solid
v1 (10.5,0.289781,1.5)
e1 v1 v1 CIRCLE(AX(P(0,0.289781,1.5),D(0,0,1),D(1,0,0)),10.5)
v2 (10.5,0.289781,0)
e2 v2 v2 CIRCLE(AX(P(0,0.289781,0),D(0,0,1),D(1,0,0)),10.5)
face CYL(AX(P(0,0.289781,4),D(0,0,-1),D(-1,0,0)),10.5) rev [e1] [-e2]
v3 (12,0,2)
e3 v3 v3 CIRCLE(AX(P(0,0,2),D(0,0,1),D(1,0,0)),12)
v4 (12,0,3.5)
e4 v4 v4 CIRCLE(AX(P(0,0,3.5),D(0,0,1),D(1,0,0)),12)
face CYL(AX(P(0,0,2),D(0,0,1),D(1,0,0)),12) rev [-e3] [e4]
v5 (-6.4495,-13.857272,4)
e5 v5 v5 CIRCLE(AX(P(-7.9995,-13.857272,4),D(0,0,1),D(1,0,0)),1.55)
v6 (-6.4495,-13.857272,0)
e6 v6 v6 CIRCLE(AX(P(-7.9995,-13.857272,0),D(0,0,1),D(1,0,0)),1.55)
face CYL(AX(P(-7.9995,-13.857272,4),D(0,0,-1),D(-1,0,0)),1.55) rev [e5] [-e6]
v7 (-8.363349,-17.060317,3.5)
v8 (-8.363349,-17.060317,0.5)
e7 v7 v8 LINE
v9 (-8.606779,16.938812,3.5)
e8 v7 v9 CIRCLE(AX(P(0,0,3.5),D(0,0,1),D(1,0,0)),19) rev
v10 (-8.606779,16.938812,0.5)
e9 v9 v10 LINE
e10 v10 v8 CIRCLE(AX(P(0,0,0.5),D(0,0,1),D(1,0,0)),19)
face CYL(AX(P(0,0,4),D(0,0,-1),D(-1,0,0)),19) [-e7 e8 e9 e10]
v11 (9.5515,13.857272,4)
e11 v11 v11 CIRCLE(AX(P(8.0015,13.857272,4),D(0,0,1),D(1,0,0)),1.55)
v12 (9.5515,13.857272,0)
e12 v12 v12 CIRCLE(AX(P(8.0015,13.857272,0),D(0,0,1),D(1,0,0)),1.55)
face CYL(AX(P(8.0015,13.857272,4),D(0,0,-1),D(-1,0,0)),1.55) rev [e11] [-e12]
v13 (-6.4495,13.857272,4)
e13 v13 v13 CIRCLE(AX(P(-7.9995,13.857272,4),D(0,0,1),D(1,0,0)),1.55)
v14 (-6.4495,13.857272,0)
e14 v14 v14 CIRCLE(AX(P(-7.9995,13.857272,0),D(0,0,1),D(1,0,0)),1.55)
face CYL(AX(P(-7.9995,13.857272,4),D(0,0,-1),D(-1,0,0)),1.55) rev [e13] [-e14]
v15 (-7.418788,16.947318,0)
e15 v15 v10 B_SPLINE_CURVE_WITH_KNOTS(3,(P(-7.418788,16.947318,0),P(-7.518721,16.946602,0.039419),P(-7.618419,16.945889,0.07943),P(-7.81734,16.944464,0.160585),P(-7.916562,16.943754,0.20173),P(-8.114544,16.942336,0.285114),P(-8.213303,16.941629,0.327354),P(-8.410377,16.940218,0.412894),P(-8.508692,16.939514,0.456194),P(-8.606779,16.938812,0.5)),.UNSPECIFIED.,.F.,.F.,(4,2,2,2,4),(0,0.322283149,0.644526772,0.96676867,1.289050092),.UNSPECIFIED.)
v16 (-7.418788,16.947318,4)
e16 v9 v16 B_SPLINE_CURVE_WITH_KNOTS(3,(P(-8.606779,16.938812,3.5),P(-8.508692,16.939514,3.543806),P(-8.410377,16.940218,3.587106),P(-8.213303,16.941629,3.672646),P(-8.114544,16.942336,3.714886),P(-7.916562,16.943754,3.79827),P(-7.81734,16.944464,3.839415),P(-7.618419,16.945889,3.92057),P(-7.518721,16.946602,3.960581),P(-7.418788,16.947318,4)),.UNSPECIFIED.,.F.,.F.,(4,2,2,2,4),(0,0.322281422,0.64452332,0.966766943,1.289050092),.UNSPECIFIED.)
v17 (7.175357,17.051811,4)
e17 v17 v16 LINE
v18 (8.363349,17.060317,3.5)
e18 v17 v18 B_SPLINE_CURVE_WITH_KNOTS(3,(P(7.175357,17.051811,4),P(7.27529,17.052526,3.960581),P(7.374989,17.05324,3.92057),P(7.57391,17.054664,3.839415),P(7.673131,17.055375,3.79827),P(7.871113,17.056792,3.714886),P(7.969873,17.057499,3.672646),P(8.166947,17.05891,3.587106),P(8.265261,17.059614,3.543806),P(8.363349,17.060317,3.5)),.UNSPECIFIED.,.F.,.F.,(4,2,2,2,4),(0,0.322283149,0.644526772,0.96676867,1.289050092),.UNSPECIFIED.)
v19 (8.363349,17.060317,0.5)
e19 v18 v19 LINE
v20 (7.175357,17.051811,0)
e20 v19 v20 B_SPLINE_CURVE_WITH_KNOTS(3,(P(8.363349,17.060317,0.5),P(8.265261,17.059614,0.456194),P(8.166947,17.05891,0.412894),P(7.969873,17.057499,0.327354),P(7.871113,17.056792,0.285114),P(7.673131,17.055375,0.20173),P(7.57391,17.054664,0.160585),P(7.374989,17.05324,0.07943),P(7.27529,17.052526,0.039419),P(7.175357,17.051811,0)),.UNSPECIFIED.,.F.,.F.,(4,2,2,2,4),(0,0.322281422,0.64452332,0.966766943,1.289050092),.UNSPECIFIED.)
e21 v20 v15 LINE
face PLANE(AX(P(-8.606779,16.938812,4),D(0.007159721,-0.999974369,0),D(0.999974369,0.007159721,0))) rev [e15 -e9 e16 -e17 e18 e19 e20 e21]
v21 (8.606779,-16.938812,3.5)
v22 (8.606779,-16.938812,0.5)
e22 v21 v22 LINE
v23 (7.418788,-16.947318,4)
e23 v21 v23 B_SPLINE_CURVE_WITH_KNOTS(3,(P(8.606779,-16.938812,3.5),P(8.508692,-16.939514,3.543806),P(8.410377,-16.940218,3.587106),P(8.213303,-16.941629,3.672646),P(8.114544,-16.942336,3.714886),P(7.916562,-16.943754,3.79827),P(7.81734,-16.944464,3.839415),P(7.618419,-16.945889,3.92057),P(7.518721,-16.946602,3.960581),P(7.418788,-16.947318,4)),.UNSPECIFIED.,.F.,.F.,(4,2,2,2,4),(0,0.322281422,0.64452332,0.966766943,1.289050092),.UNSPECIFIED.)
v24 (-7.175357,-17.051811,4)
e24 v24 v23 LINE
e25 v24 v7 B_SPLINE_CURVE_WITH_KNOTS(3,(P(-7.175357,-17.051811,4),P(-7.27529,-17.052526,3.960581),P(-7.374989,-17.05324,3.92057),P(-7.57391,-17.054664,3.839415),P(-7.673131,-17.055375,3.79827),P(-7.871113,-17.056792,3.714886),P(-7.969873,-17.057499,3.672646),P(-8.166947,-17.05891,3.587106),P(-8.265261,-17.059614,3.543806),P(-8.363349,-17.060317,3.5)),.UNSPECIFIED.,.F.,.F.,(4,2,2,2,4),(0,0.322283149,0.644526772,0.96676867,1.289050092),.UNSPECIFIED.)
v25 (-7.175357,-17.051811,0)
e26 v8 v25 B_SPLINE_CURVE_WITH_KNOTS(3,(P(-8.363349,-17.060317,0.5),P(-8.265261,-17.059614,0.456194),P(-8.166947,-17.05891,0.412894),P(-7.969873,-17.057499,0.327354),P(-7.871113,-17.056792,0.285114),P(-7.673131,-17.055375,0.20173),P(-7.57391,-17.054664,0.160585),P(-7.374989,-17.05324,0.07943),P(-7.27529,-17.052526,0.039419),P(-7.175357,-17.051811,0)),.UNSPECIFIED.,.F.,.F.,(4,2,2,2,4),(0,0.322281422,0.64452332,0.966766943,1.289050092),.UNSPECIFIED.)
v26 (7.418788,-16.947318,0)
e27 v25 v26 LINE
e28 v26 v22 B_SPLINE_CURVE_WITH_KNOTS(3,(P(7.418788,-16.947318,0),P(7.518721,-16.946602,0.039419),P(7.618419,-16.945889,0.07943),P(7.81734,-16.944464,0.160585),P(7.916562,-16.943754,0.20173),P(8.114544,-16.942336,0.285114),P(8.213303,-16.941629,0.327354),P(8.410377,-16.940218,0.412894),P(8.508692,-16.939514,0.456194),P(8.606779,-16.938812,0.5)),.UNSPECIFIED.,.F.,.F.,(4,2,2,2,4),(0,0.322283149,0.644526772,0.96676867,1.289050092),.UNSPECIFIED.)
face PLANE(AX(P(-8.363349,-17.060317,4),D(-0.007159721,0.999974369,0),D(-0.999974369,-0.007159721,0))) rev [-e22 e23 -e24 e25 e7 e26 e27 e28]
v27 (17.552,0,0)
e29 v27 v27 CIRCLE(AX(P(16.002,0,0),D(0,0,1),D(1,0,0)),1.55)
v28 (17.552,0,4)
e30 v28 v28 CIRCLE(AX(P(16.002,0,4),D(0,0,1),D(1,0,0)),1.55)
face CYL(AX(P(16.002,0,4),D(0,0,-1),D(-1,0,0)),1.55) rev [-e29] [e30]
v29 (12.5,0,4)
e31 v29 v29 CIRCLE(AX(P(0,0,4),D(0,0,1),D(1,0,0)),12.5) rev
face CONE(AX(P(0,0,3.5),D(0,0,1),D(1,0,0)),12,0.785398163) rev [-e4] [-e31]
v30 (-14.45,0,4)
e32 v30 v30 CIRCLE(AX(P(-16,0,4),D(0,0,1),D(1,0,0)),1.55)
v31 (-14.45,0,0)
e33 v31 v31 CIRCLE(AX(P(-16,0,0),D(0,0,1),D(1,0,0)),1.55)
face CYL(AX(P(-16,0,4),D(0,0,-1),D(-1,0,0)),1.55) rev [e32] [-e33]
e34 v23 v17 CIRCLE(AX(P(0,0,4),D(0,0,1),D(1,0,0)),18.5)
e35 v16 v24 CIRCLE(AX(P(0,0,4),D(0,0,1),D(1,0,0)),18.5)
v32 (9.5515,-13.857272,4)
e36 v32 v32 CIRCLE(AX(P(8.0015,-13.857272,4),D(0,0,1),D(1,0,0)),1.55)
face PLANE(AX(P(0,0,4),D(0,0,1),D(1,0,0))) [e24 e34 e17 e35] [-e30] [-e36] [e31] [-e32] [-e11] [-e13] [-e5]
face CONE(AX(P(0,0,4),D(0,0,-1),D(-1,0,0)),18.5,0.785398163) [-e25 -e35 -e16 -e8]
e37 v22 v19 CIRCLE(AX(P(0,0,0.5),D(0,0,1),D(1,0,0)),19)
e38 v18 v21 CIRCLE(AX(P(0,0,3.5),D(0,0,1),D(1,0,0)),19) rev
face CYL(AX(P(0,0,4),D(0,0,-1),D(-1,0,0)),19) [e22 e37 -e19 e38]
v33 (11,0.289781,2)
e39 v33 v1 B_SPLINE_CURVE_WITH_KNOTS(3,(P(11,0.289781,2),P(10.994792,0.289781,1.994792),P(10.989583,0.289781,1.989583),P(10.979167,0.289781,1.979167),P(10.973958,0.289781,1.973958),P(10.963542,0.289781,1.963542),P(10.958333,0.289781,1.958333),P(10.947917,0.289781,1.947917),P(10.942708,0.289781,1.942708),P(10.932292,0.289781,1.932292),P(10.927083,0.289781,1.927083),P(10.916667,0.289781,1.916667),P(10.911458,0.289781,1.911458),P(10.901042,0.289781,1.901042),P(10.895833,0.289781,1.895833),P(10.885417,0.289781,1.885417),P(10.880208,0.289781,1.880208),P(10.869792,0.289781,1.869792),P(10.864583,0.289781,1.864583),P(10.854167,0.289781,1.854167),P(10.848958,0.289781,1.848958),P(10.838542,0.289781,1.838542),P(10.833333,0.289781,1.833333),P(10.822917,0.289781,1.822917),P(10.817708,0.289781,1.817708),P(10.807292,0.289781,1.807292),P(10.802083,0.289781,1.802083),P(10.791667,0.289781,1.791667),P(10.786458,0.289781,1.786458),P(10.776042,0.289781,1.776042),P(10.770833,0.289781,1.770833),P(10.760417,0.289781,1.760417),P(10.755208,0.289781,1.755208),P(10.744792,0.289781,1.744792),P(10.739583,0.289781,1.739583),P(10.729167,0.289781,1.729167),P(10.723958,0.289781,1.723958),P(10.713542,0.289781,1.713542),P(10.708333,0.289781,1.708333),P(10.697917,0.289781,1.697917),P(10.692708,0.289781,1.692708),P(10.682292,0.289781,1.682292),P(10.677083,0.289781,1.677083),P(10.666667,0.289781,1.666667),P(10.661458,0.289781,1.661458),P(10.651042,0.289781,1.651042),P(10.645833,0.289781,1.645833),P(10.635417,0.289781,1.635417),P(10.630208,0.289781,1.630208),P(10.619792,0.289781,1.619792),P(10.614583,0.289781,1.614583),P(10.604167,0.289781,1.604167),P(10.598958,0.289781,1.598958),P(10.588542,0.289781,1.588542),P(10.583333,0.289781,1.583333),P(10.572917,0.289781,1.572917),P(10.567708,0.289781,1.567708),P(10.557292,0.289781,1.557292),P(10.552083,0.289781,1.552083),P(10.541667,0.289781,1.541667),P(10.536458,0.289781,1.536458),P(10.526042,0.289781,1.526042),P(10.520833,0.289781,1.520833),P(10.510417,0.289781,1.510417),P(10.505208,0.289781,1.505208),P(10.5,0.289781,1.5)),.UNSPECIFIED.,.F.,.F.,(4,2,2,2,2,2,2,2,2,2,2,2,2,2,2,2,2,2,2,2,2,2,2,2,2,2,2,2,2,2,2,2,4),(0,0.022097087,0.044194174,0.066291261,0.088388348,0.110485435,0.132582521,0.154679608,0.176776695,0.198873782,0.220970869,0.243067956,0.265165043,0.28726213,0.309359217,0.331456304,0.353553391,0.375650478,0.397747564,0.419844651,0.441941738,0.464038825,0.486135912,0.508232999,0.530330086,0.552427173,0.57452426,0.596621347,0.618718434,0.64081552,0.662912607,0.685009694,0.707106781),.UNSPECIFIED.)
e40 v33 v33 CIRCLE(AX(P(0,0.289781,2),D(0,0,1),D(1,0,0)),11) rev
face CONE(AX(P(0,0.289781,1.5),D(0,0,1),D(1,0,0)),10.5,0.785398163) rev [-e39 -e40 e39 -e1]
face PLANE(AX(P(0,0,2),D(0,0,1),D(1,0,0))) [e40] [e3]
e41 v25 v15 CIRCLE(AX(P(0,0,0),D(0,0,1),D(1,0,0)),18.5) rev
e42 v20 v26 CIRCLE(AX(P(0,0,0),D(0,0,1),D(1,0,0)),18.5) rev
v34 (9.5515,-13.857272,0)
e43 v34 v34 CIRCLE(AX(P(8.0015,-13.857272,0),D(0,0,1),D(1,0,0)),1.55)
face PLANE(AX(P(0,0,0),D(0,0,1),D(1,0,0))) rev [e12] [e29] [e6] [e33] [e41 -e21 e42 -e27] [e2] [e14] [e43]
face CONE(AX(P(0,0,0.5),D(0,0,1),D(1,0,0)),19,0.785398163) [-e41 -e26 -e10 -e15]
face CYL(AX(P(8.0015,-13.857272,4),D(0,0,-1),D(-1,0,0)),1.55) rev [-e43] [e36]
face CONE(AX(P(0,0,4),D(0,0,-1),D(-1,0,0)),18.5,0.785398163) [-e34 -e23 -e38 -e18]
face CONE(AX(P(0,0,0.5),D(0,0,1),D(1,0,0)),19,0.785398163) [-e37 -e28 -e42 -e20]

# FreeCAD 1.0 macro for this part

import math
import FreeCAD as App
import Part
import Sketcher
Q = App.Units.Quantity


def edges_at(feature, points):
    """Names of the edges that pass closest to the given points."""
    edges = feature.Shape.Edges
    near = lambda p: min(range(len(edges)), key=lambda i: edges[i].distToShape(Part.Vertex(*p))[0])
    return sorted({f"Edge{near(p) + 1}" for p in points})

doc = App.newDocument("Part")
body = doc.addObject("PartDesign::Body", "Body")

# Sketch on XY plane
sketch1 = body.newObject("Sketcher::SketchObject", "Sketch")
sketch1.AttachmentSupport = (doc.getObject("XY_Plane"), [""])
sketch1.MapMode = "FlatFace"
sketch1.addGeometry([
    Part.LineSegment(App.Vector(8.4, 17.1, 0), App.Vector(-8.6, 16.9, 0)),  # 0
    Part.ArcOfCircle(Part.Circle(App.Vector(0, 0, 0), App.Vector(0, 0, 1), 19), math.radians(117), math.radians(244)),  # 1
    Part.LineSegment(App.Vector(-8.4, -17.1, 0), App.Vector(8.6, -16.9, 0)),  # 2
    Part.ArcOfCircle(Part.Circle(App.Vector(0, 0, 0), App.Vector(0, 0, 1), 19), math.radians(-63), math.radians(64)),  # 3
    Part.Circle(App.Vector(8, -13.9, 0), App.Vector(0, 0, 1), 1.6),  # 4
    Part.Circle(App.Vector(-8, -13.9, 0), App.Vector(0, 0, 1), 1.6),  # 5
    Part.Circle(App.Vector(16, 0, 0), App.Vector(0, 0, 1), 1.6),  # 6
    Part.Circle(App.Vector(8, 13.9, 0), App.Vector(0, 0, 1), 1.6),  # 7
    Part.Circle(App.Vector(0, 0.3, 0), App.Vector(0, 0, 1), 10.5),  # 8
    Part.Circle(App.Vector(-16, 0, 0), App.Vector(0, 0, 1), 1.6),  # 9
    Part.Circle(App.Vector(-8, 13.9, 0), App.Vector(0, 0, 1), 1.6),  # 10
], False)
sketch1.addConstraint([
    Sketcher.Constraint("Coincident", 0, 2, 1, 1),
    Sketcher.Constraint("Coincident", 1, 2, 2, 1),
    Sketcher.Constraint("Coincident", 2, 2, 3, 1),
    Sketcher.Constraint("Coincident", 3, 2, 0, 1),
    Sketcher.Constraint("Coincident", 1, 3, -1, 1),
    Sketcher.Constraint("Coincident", 3, 3, -1, 1),
    Sketcher.Constraint("Equal", 1, 3),
    Sketcher.Constraint("Equal", 4, 5),
    Sketcher.Constraint("Equal", 5, 6),
    Sketcher.Constraint("Equal", 6, 7),
    Sketcher.Constraint("Equal", 7, 9),
    Sketcher.Constraint("Equal", 9, 10),
    Sketcher.Constraint("Symmetric", 4, 3, 7, 3, -1),
    Sketcher.Constraint("Symmetric", 5, 3, 10, 3, -1),
    Sketcher.Constraint("PointOnObject", 6, 3, -1),
    Sketcher.Constraint("PointOnObject", 8, 3, -2),
    Sketcher.Constraint("PointOnObject", 9, 3, -1),
    Sketcher.Constraint("Parallel", 0, 2),
    Sketcher.Constraint("Horizontal", 4, 3, 5, 3),
    Sketcher.Constraint("Equal", 0, 2),
    Sketcher.Constraint("Diameter", 8, Q("21 mm")),
    Sketcher.Constraint("Radius", 1, Q("19 mm")),
    Sketcher.Constraint("Diameter", 4, Q("3.1 mm")),
    Sketcher.Constraint("DistanceX", 9, 3, -1, 1, Q("16 mm")),
    Sketcher.Constraint("DistanceX", -1, 1, 6, 3, Q("16.002 mm")),
    Sketcher.Constraint("DistanceX", 5, 3, 4, 3, Q("16.001 mm")),
    Sketcher.Constraint("DistanceX", -1, 1, 4, 3, Q("8.0015 mm")),
    Sketcher.Constraint("DistanceY", -1, 1, 8, 3, Q("0.289781 mm")),
    Sketcher.Constraint("DistanceX", 0, 2, -1, 1, Q("8.606779 mm")),
    Sketcher.Constraint("DistanceX", 1, 2, -1, 1, Q("8.363349 mm")),
    Sketcher.Constraint("DistanceY", 8, 3, 7, 3, Q("13.567492 mm")),
])
pad1 = body.newObject("PartDesign::Pad", "Pad")
pad1.Profile = sketch1
pad1.Length = 4

# Sketch on XY plane
sketch2 = body.newObject("Sketcher::SketchObject", "Sketch001")
sketch2.AttachmentSupport = (doc.getObject("XY_Plane"), [""])
sketch2.MapMode = "FlatFace"
sketch2.AttachmentOffset = App.Placement(App.Vector(0, 0, 4), App.Rotation())
sketch2.addGeometry(Part.Circle(App.Vector(0, 0, 0), App.Vector(0, 0, 1), 12), False)
sketch2.addConstraint([
    Sketcher.Constraint("Coincident", 0, 3, -1, 1),
    Sketcher.Constraint("Diameter", 0, Q("24 mm")),
])
pocket1 = body.newObject("PartDesign::Pocket", "Pocket")
pocket1.Profile = sketch2
pocket1.Length = 2
doc.recompute()

chamfer = body.newObject("PartDesign::Chamfer", "Chamfer")
chamfer.Base = (pocket1, edges_at(pocket1, [
    (19, 0.136, 4),
    (-10.5, 0.29, 2),
    (-12, 0, 4),
    (-19, -0.136, 4),
    (19, 0.136, 0),
    (-19, -0.136, 0),
]))
chamfer.Size = 0.5

doc.recompute()
